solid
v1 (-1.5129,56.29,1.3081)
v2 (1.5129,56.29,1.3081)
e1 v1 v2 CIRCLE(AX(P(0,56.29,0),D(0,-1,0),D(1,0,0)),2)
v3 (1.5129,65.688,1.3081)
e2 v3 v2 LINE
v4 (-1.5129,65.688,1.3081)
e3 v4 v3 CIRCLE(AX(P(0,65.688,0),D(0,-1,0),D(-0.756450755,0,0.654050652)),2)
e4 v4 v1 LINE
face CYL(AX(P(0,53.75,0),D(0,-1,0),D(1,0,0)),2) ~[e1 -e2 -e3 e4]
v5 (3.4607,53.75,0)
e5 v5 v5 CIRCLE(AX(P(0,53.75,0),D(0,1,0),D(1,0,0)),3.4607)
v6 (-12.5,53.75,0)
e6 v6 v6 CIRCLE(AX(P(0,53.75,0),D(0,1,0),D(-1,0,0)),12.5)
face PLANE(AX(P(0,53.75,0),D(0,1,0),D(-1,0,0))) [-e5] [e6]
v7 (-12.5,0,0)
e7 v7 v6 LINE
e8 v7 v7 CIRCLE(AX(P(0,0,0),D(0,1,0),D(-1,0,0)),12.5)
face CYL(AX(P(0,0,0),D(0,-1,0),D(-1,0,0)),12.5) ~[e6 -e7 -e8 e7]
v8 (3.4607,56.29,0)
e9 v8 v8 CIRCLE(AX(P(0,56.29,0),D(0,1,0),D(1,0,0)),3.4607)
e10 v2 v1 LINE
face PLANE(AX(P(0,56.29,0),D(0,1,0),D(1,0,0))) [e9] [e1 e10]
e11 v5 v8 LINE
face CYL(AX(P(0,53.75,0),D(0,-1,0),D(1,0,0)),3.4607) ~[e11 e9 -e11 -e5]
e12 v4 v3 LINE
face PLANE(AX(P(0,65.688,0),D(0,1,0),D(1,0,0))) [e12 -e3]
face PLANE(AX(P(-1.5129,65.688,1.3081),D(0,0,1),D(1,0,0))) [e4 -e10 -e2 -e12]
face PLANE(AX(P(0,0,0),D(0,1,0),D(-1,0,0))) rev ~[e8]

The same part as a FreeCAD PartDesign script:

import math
import FreeCAD as App
import Part
import Sketcher
Q = App.Units.Quantity

doc = App.newDocument("Part")
body = doc.addObject("PartDesign::Body", "Body")

# Sketch on XZ plane
sketch1 = body.newObject("Sketcher::SketchObject", "Sketch")
sketch1.AttachmentSupport = (doc.getObject("XZ_Plane"), [""])
sketch1.MapMode = "FlatFace"
sketch1.addGeometry(Part.Circle(App.Vector(0, 0, 0), App.Vector(0, 0, 1), 12.5), False)
sketch1.addConstraint(Sketcher.Constraint("Coincident", 0, 3, -1, 1))
sketch1.addConstraint(Sketcher.Constraint("Diameter", 0, Q("25 mm")))
pad1 = body.newObject("PartDesign::Pad", "Pad")
pad1.Profile = sketch1
pad1.Length = 53.75
pad1.Reversed = True

# Sketch on XZ plane
sketch2 = body.newObject("Sketcher::SketchObject", "Sketch001")
sketch2.AttachmentSupport = (doc.getObject("XZ_Plane"), [""])
sketch2.MapMode = "FlatFace"
sketch2.AttachmentOffset = App.Placement(App.Vector(0, 0, -53.75), App.Rotation())
sketch2.addGeometry(Part.Circle(App.Vector(0, 0, 0), App.Vector(0, 0, 1), 2), False)
sketch2.addConstraint(Sketcher.Constraint("Coincident", 0, 3, -1, 1))
sketch2.addConstraint(Sketcher.Constraint("Diameter", 0, Q("4 mm")))
pad2 = body.newObject("PartDesign::Pad", "Pad001")
pad2.Profile = sketch2
pad2.Length = 11.938
pad2.Reversed = True

# Sketch on XZ plane
sketch3 = body.newObject("Sketcher::SketchObject", "Sketch002")
sketch3.AttachmentSupport = (doc.getObject("XZ_Plane"), [""])
sketch3.MapMode = "FlatFace"
sketch3.AttachmentOffset = App.Placement(App.Vector(0, 0, -65.688), App.Rotation())
sketch3.addGeometry(Part.LineSegment(App.Vector(1.5129, 1.3081, 0), App.Vector(-1.5129, 1.3081, 0)), False)
sketch3.addGeometry(Part.ArcOfCircle(Part.Circle(App.Vector(0, 0, 0), App.Vector(0, 0, 1), 2), math.radians(40.847705), math.radians(139.152295)), False)
sketch3.addConstraint(Sketcher.Constraint("Coincident", 0, 1, 1, 1))
sketch3.addConstraint(Sketcher.Constraint("Coincident", 1, 2, 0, 2))
sketch3.addConstraint(Sketcher.Constraint("Horizontal", 0))
sketch3.addConstraint(Sketcher.Constraint("Coincident", 1, 3, -1, 1))
sketch3.addConstraint(Sketcher.Constraint("Radius", 1, Q("2 mm")))
sketch3.addConstraint(Sketcher.Constraint("DistanceY", -1, 1, 0, 1, Q("1.308 mm")))
pocket1 = body.newObject("PartDesign::Pocket", "Pocket")
pocket1.Profile = sketch3
pocket1.Length = 11.938
pocket1.Reversed = True

# Sketch on XZ plane
sketch4 = body.newObject("Sketcher::SketchObject", "Sketch003")
sketch4.AttachmentSupport = (doc.getObject("XZ_Plane"), [""])
sketch4.MapMode = "FlatFace"
sketch4.AttachmentOffset = App.Placement(App.Vector(0, 0, -53.75), App.Rotation())
sketch4.addGeometry(Part.Circle(App.Vector(0, 0, 0), App.Vector(0, 0, 1), 3.4607), False)
sketch4.addConstraint(Sketcher.Constraint("Coincident", 0, 3, -1, 1))
sketch4.addConstraint(Sketcher.Constraint("Diameter", 0, Q("6.9214 mm")))
pad3 = body.newObject("PartDesign::Pad", "Pad002")
pad3.Profile = sketch4
pad3.Length = 2.54
pad3.Reversed = True

doc.recompute()
